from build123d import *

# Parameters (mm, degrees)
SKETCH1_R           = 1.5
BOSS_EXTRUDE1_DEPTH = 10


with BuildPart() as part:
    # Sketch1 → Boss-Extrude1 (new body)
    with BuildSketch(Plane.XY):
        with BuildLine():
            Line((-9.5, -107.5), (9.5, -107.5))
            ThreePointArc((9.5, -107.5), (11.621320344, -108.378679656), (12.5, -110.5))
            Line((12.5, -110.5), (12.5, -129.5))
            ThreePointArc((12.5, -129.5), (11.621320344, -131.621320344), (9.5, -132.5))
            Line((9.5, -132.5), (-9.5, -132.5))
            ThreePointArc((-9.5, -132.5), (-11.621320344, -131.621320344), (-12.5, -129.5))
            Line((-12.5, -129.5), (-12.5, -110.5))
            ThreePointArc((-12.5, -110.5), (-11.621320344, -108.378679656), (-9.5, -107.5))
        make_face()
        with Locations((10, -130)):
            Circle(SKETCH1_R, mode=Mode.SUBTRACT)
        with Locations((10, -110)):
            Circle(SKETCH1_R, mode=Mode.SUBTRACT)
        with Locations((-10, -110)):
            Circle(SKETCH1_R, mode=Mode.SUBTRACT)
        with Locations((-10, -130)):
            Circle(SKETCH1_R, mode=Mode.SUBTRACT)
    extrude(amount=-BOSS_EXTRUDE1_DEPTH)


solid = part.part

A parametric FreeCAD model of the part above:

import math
import FreeCAD as App
import Part
import Sketcher
from FreeCAD import Vector

doc = App.newDocument("Part")
params = doc.addObject("Spreadsheet::Sheet", "Params")
for row, (alias, value) in enumerate([
    ("sketch1_diameter", "3 mm"),
    ("sketch1_radius", "3 mm"),
    ("sketch1_width", "19 mm"),
    ("pad1_length", "10 mm"),
], start=1):
    params.set(f"A{row}", alias)
    params.set(f"B{row}", "=" + value)
    params.setAlias(f"B{row}", alias)

body = doc.addObject("PartDesign::Body", "Body")

# Sketch on XY plane
sketch1 = body.newObject("Sketcher::SketchObject", "Sketch")
sketch1.AttachmentSupport = (doc.getObject("XY_Plane"), [""])
sketch1.MapMode = "FlatFace"
sketch1.addGeometry([
    Part.LineSegment(Vector(9.5, -107.5, 0), Vector(-9.5, -107.5, 0)),  # 0
    Part.ArcOfCircle(Part.Circle(Vector(-9.5, -110.5, 0), Vector(0, 0, 1), 3), math.radians(90), math.radians(180)),  # 1
    Part.LineSegment(Vector(-12.5, -110.5, 0), Vector(-12.5, -129.5, 0)),  # 2
    Part.ArcOfCircle(Part.Circle(Vector(-9.5, -129.5, 0), Vector(0, 0, 1), 3), math.radians(180), math.radians(270)),  # 3
    Part.LineSegment(Vector(-9.5, -132.5, 0), Vector(9.5, -132.5, 0)),  # 4
    Part.ArcOfCircle(Part.Circle(Vector(9.5, -129.5, 0), Vector(0, 0, 1), 3), math.radians(-90), math.radians(0)),  # 5
    Part.LineSegment(Vector(12.5, -129.5, 0), Vector(12.5, -110.5, 0)),  # 6
    Part.ArcOfCircle(Part.Circle(Vector(9.5, -110.5, 0), Vector(0, 0, 1), 3), math.radians(0), math.radians(90)),  # 7
    Part.Circle(Vector(10, -130, 0), Vector(0, 0, 1), 1.5),  # 8
    Part.Circle(Vector(-10, -130, 0), Vector(0, 0, 1), 1.5),  # 9
    Part.Circle(Vector(10, -110, 0), Vector(0, 0, 1), 1.5),  # 10
    Part.Circle(Vector(-10, -110, 0), Vector(0, 0, 1), 1.5),  # 11
], False)
sketch1.addConstraint([
    Sketcher.Constraint("Tangent", 0, 2, 1, 1),
    Sketcher.Constraint("Tangent", 1, 2, 2, 1),
    Sketcher.Constraint("Tangent", 2, 2, 3, 1),
    Sketcher.Constraint("Tangent", 3, 2, 4, 1),
    Sketcher.Constraint("Tangent", 4, 2, 5, 1),
    Sketcher.Constraint("Tangent", 5, 2, 6, 1),
    Sketcher.Constraint("Tangent", 6, 2, 7, 1),
    Sketcher.Constraint("Tangent", 7, 2, 0, 1),
    Sketcher.Constraint("Horizontal", 0),
    Sketcher.Constraint("Vertical", 2),
    Sketcher.Constraint("Horizontal", 4),
    Sketcher.Constraint("Vertical", 6),
    Sketcher.Constraint("Equal", 1, 3),
    Sketcher.Constraint("Equal", 3, 5),
    Sketcher.Constraint("Equal", 5, 7),
    Sketcher.Constraint("Equal", 8, 9),
    Sketcher.Constraint("Equal", 9, 10),
    Sketcher.Constraint("Equal", 10, 11),
    Sketcher.Constraint("Symmetric", 8, 3, 9, 3, -2),
    Sketcher.Constraint("Symmetric", 10, 3, 11, 3, -2),
    Sketcher.Constraint("Vertical", 8, 3, 10, 3),
    Sketcher.Constraint("Equal", 4, 2),
    Sketcher.Constraint("Diameter", 8, 3.0),
    Sketcher.Constraint("Radius", 1, 3.0),
    Sketcher.Constraint("DistanceX", 0, 2, 0, 1, 19.0),
    Sketcher.Constraint("DistanceX", -1, 1, 8, 3, 10.0),
    Sketcher.Constraint("DistanceY", 8, 3, -1, 1, 130.0),
    Sketcher.Constraint("DistanceY", 10, 3, -1, 1, 110.0),
    Sketcher.Constraint("DistanceX", 1, 3, -1, 1, 9.5),
    Sketcher.Constraint("DistanceY", 1, 3, -1, 1, 110.5),
])
sketch1.setExpression("Constraints[22]", "Params.sketch1_diameter")
sketch1.setExpression("Constraints[23]", "Params.sketch1_radius")
sketch1.setExpression("Constraints[24]", "Params.sketch1_width")
pad1 = body.newObject("PartDesign::Pad", "Pad")
pad1.Profile = sketch1
pad1.setExpression("Length", "Params.pad1_length")
pad1.Reversed = True

doc.recompute()
